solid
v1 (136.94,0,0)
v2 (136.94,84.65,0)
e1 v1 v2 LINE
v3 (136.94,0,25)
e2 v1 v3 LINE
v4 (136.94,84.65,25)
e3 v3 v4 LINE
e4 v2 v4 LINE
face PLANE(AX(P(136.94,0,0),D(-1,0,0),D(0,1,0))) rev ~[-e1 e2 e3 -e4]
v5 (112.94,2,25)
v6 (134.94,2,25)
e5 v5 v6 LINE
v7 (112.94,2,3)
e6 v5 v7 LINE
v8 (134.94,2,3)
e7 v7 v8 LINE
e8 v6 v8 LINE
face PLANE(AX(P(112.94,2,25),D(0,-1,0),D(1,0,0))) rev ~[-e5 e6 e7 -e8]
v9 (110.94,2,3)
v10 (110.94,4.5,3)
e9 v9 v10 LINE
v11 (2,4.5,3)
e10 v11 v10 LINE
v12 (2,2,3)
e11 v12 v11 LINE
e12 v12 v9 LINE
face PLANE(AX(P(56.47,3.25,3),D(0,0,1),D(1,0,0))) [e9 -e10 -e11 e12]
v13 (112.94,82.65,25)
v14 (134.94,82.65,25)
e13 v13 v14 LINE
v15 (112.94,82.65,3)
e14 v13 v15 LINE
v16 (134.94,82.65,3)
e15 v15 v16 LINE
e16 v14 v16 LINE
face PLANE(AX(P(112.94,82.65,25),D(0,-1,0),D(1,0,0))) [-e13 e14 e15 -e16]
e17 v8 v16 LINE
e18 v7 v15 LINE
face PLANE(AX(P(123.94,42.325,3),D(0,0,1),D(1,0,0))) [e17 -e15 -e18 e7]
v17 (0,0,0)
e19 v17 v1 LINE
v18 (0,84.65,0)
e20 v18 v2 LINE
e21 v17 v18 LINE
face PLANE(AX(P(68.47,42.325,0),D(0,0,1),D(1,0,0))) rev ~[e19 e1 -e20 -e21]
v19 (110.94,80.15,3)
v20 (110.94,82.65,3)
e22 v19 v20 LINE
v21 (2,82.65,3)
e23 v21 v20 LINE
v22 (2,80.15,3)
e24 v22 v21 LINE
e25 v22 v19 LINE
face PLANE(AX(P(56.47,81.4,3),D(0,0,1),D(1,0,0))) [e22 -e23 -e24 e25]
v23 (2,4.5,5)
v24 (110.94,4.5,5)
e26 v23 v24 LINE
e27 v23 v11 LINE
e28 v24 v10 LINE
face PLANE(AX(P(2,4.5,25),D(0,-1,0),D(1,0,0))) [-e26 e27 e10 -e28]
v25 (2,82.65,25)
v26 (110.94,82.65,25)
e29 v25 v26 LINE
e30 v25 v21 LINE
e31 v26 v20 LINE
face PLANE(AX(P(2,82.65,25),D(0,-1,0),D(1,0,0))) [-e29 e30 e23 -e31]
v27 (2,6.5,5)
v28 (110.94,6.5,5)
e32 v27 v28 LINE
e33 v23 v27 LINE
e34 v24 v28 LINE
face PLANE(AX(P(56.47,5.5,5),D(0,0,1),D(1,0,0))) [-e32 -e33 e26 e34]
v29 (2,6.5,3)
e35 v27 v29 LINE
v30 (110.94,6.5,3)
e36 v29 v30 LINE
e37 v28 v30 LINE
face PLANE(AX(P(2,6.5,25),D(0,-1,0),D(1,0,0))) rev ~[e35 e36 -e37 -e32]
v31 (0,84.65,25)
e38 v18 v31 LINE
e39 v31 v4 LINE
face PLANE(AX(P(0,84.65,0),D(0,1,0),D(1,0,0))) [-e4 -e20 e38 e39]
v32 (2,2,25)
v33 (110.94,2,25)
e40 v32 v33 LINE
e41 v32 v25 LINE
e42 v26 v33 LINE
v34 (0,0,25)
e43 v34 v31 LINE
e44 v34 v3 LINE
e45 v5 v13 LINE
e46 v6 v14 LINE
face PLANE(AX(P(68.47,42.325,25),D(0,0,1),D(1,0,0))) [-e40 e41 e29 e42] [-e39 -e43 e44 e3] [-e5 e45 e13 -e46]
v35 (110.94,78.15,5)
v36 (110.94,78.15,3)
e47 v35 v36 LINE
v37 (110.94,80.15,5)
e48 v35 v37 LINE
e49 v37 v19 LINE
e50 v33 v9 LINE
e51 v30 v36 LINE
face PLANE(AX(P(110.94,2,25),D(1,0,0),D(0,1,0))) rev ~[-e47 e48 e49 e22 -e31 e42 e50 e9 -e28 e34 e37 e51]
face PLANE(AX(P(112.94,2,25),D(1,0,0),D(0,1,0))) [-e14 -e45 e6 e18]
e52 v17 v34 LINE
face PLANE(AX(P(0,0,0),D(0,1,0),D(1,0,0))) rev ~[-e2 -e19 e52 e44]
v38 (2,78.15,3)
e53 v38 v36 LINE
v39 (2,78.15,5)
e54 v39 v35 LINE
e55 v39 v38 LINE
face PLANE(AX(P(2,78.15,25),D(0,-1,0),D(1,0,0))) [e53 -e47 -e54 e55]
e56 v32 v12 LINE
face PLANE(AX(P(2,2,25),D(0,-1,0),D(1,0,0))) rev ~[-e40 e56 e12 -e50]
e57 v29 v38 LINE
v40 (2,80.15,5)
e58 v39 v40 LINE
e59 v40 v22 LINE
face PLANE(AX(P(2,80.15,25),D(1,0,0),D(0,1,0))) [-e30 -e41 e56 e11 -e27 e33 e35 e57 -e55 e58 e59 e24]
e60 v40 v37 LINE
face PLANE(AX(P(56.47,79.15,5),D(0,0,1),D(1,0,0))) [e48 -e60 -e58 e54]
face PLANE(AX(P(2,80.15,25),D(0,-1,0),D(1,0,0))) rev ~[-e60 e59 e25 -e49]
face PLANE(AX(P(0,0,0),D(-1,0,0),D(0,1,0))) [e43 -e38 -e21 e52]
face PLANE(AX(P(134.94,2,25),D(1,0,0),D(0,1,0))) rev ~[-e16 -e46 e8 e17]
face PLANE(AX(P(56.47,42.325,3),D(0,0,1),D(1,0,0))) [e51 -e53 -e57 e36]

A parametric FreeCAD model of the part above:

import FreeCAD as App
import Part
import Sketcher

V = App.Vector
Q = App.Units.Quantity

doc = App.newDocument("Part")
params = doc.addObject("Spreadsheet::Sheet", "Params")
for row, (alias, value) in enumerate([
    ("sketch1_width", "136.94 mm"),
    ("sketch1_height", "84.65 mm"),
    ("pad1_length", "25 mm"),
    ("sketch2_height", "2.5 mm"),
    ("sketch2_width", "108.94 mm"),
    ("sketch2_height2", "71.65 mm"),
    ("pocket1_length", "22 mm"),
    ("sketch3_width", "22 mm"),
    ("sketch3_height", "80.65 mm"),
    ("pocket2_length", "22 mm"),
    ("sketch4_height", "2 mm"),
    ("sketch4_width", "108.94 mm"),
    ("pocket3_length", "20 mm"),
], start=1):
    params.set(f"A{row}", alias)
    params.set(f"B{row}", "=" + value)
    params.setAlias(f"B{row}", alias)

body = doc.addObject("PartDesign::Body", "Body")

# Sketch on XY plane
sketch1 = body.newObject("Sketcher::SketchObject", "Sketch")
sketch1.AttachmentSupport = (doc.getObject("XY_Plane"), [""])
sketch1.MapMode = "FlatFace"
sketch1.addGeometry([
    Part.LineSegment(V(0, 84.65, 0), V(0, 0, 0)),
    Part.LineSegment(V(0, 0, 0), V(136.94, 0, 0)),
    Part.LineSegment(V(136.94, 0, 0), V(136.94, 84.65, 0)),
    Part.LineSegment(V(136.94, 84.65, 0), V(0, 84.65, 0)),
], False)
sketch1.addConstraint([
    Sketcher.Constraint("Coincident", 0, 2, 1, 1),
    Sketcher.Constraint("Coincident", 1, 2, 2, 1),
    Sketcher.Constraint("Coincident", 2, 2, 3, 1),
    Sketcher.Constraint("Coincident", 3, 2, 0, 1),
    Sketcher.Constraint("Vertical", 0),
    Sketcher.Constraint("Horizontal", 1),
    Sketcher.Constraint("Vertical", 2),
    Sketcher.Constraint("Horizontal", 3),
    Sketcher.Constraint("Coincident", 0, 2, -1, 1),
    Sketcher.Constraint("DistanceX", 1, 1, 1, 2, Q("136.94 mm")),
    Sketcher.Constraint("DistanceY", 0, 2, 0, 1, Q("84.65 mm")),
])
sketch1.setExpression("Constraints[9]", "Params.sketch1_width")
sketch1.setExpression("Constraints[10]", "Params.sketch1_height")
pad1 = body.newObject("PartDesign::Pad", "Pad")
pad1.Profile = sketch1
pad1.setExpression("Length", "Params.pad1_length")

# Sketch on XY plane
sketch2 = body.newObject("Sketcher::SketchObject", "Sketch001")
sketch2.AttachmentSupport = (doc.getObject("XY_Plane"), [""])
sketch2.MapMode = "FlatFace"
sketch2.AttachmentOffset = App.Placement(V(0, 0, 25), App.Rotation())
sketch2.addGeometry([
    Part.LineSegment(V(2, 78.15, 0), V(2, 6.5, 0)),  # 0
    Part.LineSegment(V(2, 6.5, 0), V(110.94, 6.5, 0)),  # 1
    Part.LineSegment(V(110.94, 6.5, 0), V(110.94, 78.15, 0)),  # 2
    Part.LineSegment(V(110.94, 78.15, 0), V(2, 78.15, 0)),  # 3
    Part.LineSegment(V(2, 4.5, 0), V(2, 2, 0)),  # 4
    Part.LineSegment(V(2, 2, 0), V(110.94, 2, 0)),  # 5
    Part.LineSegment(V(110.94, 2, 0), V(110.94, 4.5, 0)),  # 6
    Part.LineSegment(V(110.94, 4.5, 0), V(2, 4.5, 0)),  # 7
    Part.LineSegment(V(2, 82.65, 0), V(2, 80.15, 0)),  # 8
    Part.LineSegment(V(2, 80.15, 0), V(110.94, 80.15, 0)),  # 9
    Part.LineSegment(V(110.94, 80.15, 0), V(110.94, 82.65, 0)),  # 10
    Part.LineSegment(V(110.94, 82.65, 0), V(2, 82.65, 0)),  # 11
], False)
sketch2.addConstraint([
    Sketcher.Constraint("Coincident", 0, 2, 1, 1),
    Sketcher.Constraint("Coincident", 1, 2, 2, 1),
    Sketcher.Constraint("Coincident", 2, 2, 3, 1),
    Sketcher.Constraint("Coincident", 3, 2, 0, 1),
    Sketcher.Constraint("Coincident", 4, 2, 5, 1),
    Sketcher.Constraint("Coincident", 5, 2, 6, 1),
    Sketcher.Constraint("Coincident", 6, 2, 7, 1),
    Sketcher.Constraint("Coincident", 7, 2, 4, 1),
    Sketcher.Constraint("Coincident", 8, 2, 9, 1),
    Sketcher.Constraint("Coincident", 9, 2, 10, 1),
    Sketcher.Constraint("Coincident", 10, 2, 11, 1),
    Sketcher.Constraint("Coincident", 11, 2, 8, 1),
    Sketcher.Constraint("Vertical", 0),
    Sketcher.Constraint("Horizontal", 1),
    Sketcher.Constraint("Vertical", 2),
    Sketcher.Constraint("Horizontal", 3),
    Sketcher.Constraint("Vertical", 4),
    Sketcher.Constraint("Horizontal", 5),
    Sketcher.Constraint("Vertical", 6),
    Sketcher.Constraint("Horizontal", 7),
    Sketcher.Constraint("Vertical", 8),
    Sketcher.Constraint("Horizontal", 9),
    Sketcher.Constraint("Vertical", 10),
    Sketcher.Constraint("Horizontal", 11),
    Sketcher.Constraint("Vertical", 3, 2, 4, 2),
    Sketcher.Constraint("Vertical", 2, 2, 5, 2),
    Sketcher.Constraint("Vertical", 7, 2, 8, 2),
    Sketcher.Constraint("Vertical", 6, 2, 9, 2),
    Sketcher.Constraint("Equal", 6, 8),
    Sketcher.Constraint("DistanceY", 4, 2, 4, 1, Q("2.5 mm")),
    Sketcher.Constraint("DistanceX", -1, 1, 0, 2, Q("2 mm")),
    Sketcher.Constraint("DistanceY", -1, 1, 4, 2, Q("2 mm")),
    Sketcher.Constraint("DistanceY", 6, 2, 1, 2, Q("2 mm")),
    Sketcher.Constraint("DistanceY", 3, 2, 8, 2, Q("2 mm")),
    Sketcher.Constraint("DistanceX", 1, 1, 1, 2, Q("108.94 mm")),
    Sketcher.Constraint("DistanceY", 0, 2, 0, 1, Q("71.65 mm")),
])
sketch2.setExpression("Constraints[29]", "Params.sketch2_height")
sketch2.setExpression("Constraints[34]", "Params.sketch2_width")
sketch2.setExpression("Constraints[35]", "Params.sketch2_height2")
pocket1 = body.newObject("PartDesign::Pocket", "Pocket")
pocket1.Profile = sketch2
pocket1.setExpression("Length", "Params.pocket1_length")

# Sketch on XY plane
sketch3 = body.newObject("Sketcher::SketchObject", "Sketch002")
sketch3.AttachmentSupport = (doc.getObject("XY_Plane"), [""])
sketch3.MapMode = "FlatFace"
sketch3.AttachmentOffset = App.Placement(V(0, 0, 25), App.Rotation())
sketch3.addGeometry([
    Part.LineSegment(V(112.94, 82.65, 0), V(112.94, 2, 0)),
    Part.LineSegment(V(112.94, 2, 0), V(134.94, 2, 0)),
    Part.LineSegment(V(134.94, 2, 0), V(134.94, 82.65, 0)),
    Part.LineSegment(V(134.94, 82.65, 0), V(112.94, 82.65, 0)),
], False)
sketch3.addConstraint([
    Sketcher.Constraint("Coincident", 0, 2, 1, 1),
    Sketcher.Constraint("Coincident", 1, 2, 2, 1),
    Sketcher.Constraint("Coincident", 2, 2, 3, 1),
    Sketcher.Constraint("Coincident", 3, 2, 0, 1),
    Sketcher.Constraint("Vertical", 0),
    Sketcher.Constraint("Horizontal", 1),
    Sketcher.Constraint("Vertical", 2),
    Sketcher.Constraint("Horizontal", 3),
    Sketcher.Constraint("DistanceX", 1, 1, 1, 2, Q("22 mm")),
    Sketcher.Constraint("DistanceY", -1, 1, 0, 2, Q("2 mm")),
    Sketcher.Constraint("DistanceY", 0, 2, 0, 1, Q("80.65 mm")),
    Sketcher.Constraint("DistanceX", -1, 1, 0, 2, Q("112.94 mm")),
])
sketch3.setExpression("Constraints[8]", "Params.sketch3_width")
sketch3.setExpression("Constraints[10]", "Params.sketch3_height")
pocket2 = body.newObject("PartDesign::Pocket", "Pocket001")
pocket2.Profile = sketch3
pocket2.setExpression("Length", "Params.pocket2_length")

# Sketch on XY plane
sketch4 = body.newObject("Sketcher::SketchObject", "Sketch003")
sketch4.AttachmentSupport = (doc.getObject("XY_Plane"), [""])
sketch4.MapMode = "FlatFace"
sketch4.AttachmentOffset = App.Placement(V(0, 0, 25), App.Rotation())
sketch4.addGeometry([
    Part.LineSegment(V(2, 80.15, 0), V(2, 78.15, 0)),  # 0
    Part.LineSegment(V(2, 78.15, 0), V(110.94, 78.15, 0)),  # 1
    Part.LineSegment(V(110.94, 78.15, 0), V(110.94, 80.15, 0)),  # 2
    Part.LineSegment(V(110.94, 80.15, 0), V(2, 80.15, 0)),  # 3
    Part.LineSegment(V(2, 6.5, 0), V(2, 4.5, 0)),  # 4
    Part.LineSegment(V(2, 4.5, 0), V(110.94, 4.5, 0)),  # 5
    Part.LineSegment(V(110.94, 4.5, 0), V(110.94, 6.5, 0)),  # 6
    Part.LineSegment(V(110.94, 6.5, 0), V(2, 6.5, 0)),  # 7
], False)
sketch4.addConstraint([
    Sketcher.Constraint("Coincident", 0, 2, 1, 1),
    Sketcher.Constraint("Coincident", 1, 2, 2, 1),
    Sketcher.Constraint("Coincident", 2, 2, 3, 1),
    Sketcher.Constraint("Coincident", 3, 2, 0, 1),
    Sketcher.Constraint("Coincident", 4, 2, 5, 1),
    Sketcher.Constraint("Coincident", 5, 2, 6, 1),
    Sketcher.Constraint("Coincident", 6, 2, 7, 1),
    Sketcher.Constraint("Coincident", 7, 2, 4, 1),
    Sketcher.Constraint("Vertical", 0),
    Sketcher.Constraint("Horizontal", 1),
    Sketcher.Constraint("Vertical", 2),
    Sketcher.Constraint("Horizontal", 3),
    Sketcher.Constraint("Vertical", 4),
    Sketcher.Constraint("Horizontal", 5),
    Sketcher.Constraint("Vertical", 6),
    Sketcher.Constraint("Horizontal", 7),
    Sketcher.Constraint("Vertical", 3, 2, 4, 2),
    Sketcher.Constraint("Vertical", 2, 2, 5, 2),
    Sketcher.Constraint("Equal", 2, 4),
    Sketcher.Constraint("DistanceY", 0, 2, 0, 1, Q("2 mm")),
    Sketcher.Constraint("DistanceX", -1, 1, 0, 2, Q("2 mm")),
    Sketcher.Constraint("DistanceX", 1, 1, 1, 2, Q("108.94 mm")),
    Sketcher.Constraint("DistanceY", -1, 1, 4, 2, Q("4.5 mm")),
    Sketcher.Constraint("DistanceY", -1, 1, 0, 2, Q("78.15 mm")),
])
sketch4.setExpression("Constraints[19]", "Params.sketch4_height")
sketch4.setExpression("Constraints[21]", "Params.sketch4_width")
pocket3 = body.newObject("PartDesign::Pocket", "Pocket002")
pocket3.Profile = sketch4
pocket3.setExpression("Length", "Params.pocket3_length")

doc.recompute()
